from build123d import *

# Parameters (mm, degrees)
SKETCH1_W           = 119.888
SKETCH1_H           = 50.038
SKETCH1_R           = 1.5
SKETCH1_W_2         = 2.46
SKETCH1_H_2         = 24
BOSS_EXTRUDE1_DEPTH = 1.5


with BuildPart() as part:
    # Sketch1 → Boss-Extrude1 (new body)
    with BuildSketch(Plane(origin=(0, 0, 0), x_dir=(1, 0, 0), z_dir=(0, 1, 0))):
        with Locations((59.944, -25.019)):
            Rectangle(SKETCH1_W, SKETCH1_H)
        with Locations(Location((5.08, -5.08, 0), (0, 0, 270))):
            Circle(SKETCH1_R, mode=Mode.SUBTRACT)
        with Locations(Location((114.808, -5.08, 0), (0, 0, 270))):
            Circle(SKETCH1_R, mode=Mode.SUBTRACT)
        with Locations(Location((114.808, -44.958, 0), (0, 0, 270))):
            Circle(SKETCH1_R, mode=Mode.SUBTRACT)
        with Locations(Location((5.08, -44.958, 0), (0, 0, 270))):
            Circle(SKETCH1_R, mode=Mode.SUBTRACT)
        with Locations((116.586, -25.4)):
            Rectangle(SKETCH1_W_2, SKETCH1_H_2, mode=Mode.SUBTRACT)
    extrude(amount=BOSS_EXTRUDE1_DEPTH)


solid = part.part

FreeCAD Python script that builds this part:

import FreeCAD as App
import Part
import Sketcher
from FreeCAD import Vector

doc = App.newDocument("Part")
body = doc.addObject("PartDesign::Body", "Body")

# Sketch on XZ plane
sketch1 = body.newObject("Sketcher::SketchObject", "Sketch")
sketch1.AttachmentSupport = (doc.getObject("XZ_Plane"), [""])
sketch1.MapMode = "FlatFace"
sketch1.addGeometry([
    Part.LineSegment(Vector(0, 0, 0), Vector(0, 50, 0)),  # 0
    Part.LineSegment(Vector(0, 50, 0), Vector(119.9, 50, 0)),  # 1
    Part.LineSegment(Vector(119.9, 50, 0), Vector(119.9, 0, 0)),  # 2
    Part.LineSegment(Vector(119.9, 0, 0), Vector(0, 0, 0)),  # 3
    Part.Circle(Vector(5.1, 45, 0), Vector(0, 0, 1), 1.5),  # 4
    Part.Circle(Vector(114.8, 45, 0), Vector(0, 0, 1), 1.5),  # 5
    Part.LineSegment(Vector(117.8, 37.4, 0), Vector(115.4, 37.4, 0)),  # 6
    Part.LineSegment(Vector(115.4, 37.4, 0), Vector(115.4, 13.4, 0)),  # 7
    Part.LineSegment(Vector(115.4, 13.4, 0), Vector(117.8, 13.4, 0)),  # 8
    Part.LineSegment(Vector(117.8, 13.4, 0), Vector(117.8, 37.4, 0)),  # 9
    Part.Circle(Vector(5.1, 5.1, 0), Vector(0, 0, 1), 1.5),  # 10
    Part.Circle(Vector(114.8, 5.1, 0), Vector(0, 0, 1), 1.5),  # 11
], False)
sketch1.addConstraint([
    Sketcher.Constraint("Coincident", 0, 2, 1, 1),
    Sketcher.Constraint("Coincident", 1, 2, 2, 1),
    Sketcher.Constraint("Coincident", 2, 2, 3, 1),
    Sketcher.Constraint("Coincident", 3, 2, 0, 1),
    Sketcher.Constraint("Coincident", 6, 2, 7, 1),
    Sketcher.Constraint("Coincident", 7, 2, 8, 1),
    Sketcher.Constraint("Coincident", 8, 2, 9, 1),
    Sketcher.Constraint("Coincident", 9, 2, 6, 1),
    Sketcher.Constraint("Vertical", 0),
    Sketcher.Constraint("Horizontal", 1),
    Sketcher.Constraint("Vertical", 2),
    Sketcher.Constraint("Horizontal", 3),
    Sketcher.Constraint("Horizontal", 6),
    Sketcher.Constraint("Vertical", 7),
    Sketcher.Constraint("Horizontal", 8),
    Sketcher.Constraint("Vertical", 9),
    Sketcher.Constraint("Coincident", 3, 2, -1, 1),
    Sketcher.Constraint("Equal", 4, 5),
    Sketcher.Constraint("Equal", 5, 10),
    Sketcher.Constraint("Equal", 10, 11),
    Sketcher.Constraint("Horizontal", 4, 3, 5, 3),
    Sketcher.Constraint("Horizontal", 10, 3, 11, 3),
    Sketcher.Constraint("Vertical", 4, 3, 10, 3),
    Sketcher.Constraint("Vertical", 5, 3, 11, 3),
    Sketcher.Constraint("Diameter", 4, 3.0),
    Sketcher.Constraint("DistanceY", 7, 2, 7, 1, 24.0),
    Sketcher.Constraint("DistanceX", 6, 2, 6, 1, 2.46),
    Sketcher.Constraint("DistanceY", -1, 1, 6, 2, 37.4),
    Sketcher.Constraint("DistanceX", 1, 1, 1, 2, 119.888),
    Sketcher.Constraint("DistanceY", 0, 1, 0, 2, 50.038),
    Sketcher.Constraint("DistanceX", -1, 1, 4, 3, 5.08),
    Sketcher.Constraint("DistanceY", -1, 1, 10, 3, 5.08),
    Sketcher.Constraint("DistanceY", 4, 3, 0, 2, 5.08),
    Sketcher.Constraint("DistanceX", 5, 3, 1, 2, 5.08),
    Sketcher.Constraint("DistanceX", -1, 1, 6, 2, 115.356),
])
pad1 = body.newObject("PartDesign::Pad", "Pad")
pad1.Profile = sketch1
pad1.Length = 1.5
pad1.Reversed = True

doc.recompute()
